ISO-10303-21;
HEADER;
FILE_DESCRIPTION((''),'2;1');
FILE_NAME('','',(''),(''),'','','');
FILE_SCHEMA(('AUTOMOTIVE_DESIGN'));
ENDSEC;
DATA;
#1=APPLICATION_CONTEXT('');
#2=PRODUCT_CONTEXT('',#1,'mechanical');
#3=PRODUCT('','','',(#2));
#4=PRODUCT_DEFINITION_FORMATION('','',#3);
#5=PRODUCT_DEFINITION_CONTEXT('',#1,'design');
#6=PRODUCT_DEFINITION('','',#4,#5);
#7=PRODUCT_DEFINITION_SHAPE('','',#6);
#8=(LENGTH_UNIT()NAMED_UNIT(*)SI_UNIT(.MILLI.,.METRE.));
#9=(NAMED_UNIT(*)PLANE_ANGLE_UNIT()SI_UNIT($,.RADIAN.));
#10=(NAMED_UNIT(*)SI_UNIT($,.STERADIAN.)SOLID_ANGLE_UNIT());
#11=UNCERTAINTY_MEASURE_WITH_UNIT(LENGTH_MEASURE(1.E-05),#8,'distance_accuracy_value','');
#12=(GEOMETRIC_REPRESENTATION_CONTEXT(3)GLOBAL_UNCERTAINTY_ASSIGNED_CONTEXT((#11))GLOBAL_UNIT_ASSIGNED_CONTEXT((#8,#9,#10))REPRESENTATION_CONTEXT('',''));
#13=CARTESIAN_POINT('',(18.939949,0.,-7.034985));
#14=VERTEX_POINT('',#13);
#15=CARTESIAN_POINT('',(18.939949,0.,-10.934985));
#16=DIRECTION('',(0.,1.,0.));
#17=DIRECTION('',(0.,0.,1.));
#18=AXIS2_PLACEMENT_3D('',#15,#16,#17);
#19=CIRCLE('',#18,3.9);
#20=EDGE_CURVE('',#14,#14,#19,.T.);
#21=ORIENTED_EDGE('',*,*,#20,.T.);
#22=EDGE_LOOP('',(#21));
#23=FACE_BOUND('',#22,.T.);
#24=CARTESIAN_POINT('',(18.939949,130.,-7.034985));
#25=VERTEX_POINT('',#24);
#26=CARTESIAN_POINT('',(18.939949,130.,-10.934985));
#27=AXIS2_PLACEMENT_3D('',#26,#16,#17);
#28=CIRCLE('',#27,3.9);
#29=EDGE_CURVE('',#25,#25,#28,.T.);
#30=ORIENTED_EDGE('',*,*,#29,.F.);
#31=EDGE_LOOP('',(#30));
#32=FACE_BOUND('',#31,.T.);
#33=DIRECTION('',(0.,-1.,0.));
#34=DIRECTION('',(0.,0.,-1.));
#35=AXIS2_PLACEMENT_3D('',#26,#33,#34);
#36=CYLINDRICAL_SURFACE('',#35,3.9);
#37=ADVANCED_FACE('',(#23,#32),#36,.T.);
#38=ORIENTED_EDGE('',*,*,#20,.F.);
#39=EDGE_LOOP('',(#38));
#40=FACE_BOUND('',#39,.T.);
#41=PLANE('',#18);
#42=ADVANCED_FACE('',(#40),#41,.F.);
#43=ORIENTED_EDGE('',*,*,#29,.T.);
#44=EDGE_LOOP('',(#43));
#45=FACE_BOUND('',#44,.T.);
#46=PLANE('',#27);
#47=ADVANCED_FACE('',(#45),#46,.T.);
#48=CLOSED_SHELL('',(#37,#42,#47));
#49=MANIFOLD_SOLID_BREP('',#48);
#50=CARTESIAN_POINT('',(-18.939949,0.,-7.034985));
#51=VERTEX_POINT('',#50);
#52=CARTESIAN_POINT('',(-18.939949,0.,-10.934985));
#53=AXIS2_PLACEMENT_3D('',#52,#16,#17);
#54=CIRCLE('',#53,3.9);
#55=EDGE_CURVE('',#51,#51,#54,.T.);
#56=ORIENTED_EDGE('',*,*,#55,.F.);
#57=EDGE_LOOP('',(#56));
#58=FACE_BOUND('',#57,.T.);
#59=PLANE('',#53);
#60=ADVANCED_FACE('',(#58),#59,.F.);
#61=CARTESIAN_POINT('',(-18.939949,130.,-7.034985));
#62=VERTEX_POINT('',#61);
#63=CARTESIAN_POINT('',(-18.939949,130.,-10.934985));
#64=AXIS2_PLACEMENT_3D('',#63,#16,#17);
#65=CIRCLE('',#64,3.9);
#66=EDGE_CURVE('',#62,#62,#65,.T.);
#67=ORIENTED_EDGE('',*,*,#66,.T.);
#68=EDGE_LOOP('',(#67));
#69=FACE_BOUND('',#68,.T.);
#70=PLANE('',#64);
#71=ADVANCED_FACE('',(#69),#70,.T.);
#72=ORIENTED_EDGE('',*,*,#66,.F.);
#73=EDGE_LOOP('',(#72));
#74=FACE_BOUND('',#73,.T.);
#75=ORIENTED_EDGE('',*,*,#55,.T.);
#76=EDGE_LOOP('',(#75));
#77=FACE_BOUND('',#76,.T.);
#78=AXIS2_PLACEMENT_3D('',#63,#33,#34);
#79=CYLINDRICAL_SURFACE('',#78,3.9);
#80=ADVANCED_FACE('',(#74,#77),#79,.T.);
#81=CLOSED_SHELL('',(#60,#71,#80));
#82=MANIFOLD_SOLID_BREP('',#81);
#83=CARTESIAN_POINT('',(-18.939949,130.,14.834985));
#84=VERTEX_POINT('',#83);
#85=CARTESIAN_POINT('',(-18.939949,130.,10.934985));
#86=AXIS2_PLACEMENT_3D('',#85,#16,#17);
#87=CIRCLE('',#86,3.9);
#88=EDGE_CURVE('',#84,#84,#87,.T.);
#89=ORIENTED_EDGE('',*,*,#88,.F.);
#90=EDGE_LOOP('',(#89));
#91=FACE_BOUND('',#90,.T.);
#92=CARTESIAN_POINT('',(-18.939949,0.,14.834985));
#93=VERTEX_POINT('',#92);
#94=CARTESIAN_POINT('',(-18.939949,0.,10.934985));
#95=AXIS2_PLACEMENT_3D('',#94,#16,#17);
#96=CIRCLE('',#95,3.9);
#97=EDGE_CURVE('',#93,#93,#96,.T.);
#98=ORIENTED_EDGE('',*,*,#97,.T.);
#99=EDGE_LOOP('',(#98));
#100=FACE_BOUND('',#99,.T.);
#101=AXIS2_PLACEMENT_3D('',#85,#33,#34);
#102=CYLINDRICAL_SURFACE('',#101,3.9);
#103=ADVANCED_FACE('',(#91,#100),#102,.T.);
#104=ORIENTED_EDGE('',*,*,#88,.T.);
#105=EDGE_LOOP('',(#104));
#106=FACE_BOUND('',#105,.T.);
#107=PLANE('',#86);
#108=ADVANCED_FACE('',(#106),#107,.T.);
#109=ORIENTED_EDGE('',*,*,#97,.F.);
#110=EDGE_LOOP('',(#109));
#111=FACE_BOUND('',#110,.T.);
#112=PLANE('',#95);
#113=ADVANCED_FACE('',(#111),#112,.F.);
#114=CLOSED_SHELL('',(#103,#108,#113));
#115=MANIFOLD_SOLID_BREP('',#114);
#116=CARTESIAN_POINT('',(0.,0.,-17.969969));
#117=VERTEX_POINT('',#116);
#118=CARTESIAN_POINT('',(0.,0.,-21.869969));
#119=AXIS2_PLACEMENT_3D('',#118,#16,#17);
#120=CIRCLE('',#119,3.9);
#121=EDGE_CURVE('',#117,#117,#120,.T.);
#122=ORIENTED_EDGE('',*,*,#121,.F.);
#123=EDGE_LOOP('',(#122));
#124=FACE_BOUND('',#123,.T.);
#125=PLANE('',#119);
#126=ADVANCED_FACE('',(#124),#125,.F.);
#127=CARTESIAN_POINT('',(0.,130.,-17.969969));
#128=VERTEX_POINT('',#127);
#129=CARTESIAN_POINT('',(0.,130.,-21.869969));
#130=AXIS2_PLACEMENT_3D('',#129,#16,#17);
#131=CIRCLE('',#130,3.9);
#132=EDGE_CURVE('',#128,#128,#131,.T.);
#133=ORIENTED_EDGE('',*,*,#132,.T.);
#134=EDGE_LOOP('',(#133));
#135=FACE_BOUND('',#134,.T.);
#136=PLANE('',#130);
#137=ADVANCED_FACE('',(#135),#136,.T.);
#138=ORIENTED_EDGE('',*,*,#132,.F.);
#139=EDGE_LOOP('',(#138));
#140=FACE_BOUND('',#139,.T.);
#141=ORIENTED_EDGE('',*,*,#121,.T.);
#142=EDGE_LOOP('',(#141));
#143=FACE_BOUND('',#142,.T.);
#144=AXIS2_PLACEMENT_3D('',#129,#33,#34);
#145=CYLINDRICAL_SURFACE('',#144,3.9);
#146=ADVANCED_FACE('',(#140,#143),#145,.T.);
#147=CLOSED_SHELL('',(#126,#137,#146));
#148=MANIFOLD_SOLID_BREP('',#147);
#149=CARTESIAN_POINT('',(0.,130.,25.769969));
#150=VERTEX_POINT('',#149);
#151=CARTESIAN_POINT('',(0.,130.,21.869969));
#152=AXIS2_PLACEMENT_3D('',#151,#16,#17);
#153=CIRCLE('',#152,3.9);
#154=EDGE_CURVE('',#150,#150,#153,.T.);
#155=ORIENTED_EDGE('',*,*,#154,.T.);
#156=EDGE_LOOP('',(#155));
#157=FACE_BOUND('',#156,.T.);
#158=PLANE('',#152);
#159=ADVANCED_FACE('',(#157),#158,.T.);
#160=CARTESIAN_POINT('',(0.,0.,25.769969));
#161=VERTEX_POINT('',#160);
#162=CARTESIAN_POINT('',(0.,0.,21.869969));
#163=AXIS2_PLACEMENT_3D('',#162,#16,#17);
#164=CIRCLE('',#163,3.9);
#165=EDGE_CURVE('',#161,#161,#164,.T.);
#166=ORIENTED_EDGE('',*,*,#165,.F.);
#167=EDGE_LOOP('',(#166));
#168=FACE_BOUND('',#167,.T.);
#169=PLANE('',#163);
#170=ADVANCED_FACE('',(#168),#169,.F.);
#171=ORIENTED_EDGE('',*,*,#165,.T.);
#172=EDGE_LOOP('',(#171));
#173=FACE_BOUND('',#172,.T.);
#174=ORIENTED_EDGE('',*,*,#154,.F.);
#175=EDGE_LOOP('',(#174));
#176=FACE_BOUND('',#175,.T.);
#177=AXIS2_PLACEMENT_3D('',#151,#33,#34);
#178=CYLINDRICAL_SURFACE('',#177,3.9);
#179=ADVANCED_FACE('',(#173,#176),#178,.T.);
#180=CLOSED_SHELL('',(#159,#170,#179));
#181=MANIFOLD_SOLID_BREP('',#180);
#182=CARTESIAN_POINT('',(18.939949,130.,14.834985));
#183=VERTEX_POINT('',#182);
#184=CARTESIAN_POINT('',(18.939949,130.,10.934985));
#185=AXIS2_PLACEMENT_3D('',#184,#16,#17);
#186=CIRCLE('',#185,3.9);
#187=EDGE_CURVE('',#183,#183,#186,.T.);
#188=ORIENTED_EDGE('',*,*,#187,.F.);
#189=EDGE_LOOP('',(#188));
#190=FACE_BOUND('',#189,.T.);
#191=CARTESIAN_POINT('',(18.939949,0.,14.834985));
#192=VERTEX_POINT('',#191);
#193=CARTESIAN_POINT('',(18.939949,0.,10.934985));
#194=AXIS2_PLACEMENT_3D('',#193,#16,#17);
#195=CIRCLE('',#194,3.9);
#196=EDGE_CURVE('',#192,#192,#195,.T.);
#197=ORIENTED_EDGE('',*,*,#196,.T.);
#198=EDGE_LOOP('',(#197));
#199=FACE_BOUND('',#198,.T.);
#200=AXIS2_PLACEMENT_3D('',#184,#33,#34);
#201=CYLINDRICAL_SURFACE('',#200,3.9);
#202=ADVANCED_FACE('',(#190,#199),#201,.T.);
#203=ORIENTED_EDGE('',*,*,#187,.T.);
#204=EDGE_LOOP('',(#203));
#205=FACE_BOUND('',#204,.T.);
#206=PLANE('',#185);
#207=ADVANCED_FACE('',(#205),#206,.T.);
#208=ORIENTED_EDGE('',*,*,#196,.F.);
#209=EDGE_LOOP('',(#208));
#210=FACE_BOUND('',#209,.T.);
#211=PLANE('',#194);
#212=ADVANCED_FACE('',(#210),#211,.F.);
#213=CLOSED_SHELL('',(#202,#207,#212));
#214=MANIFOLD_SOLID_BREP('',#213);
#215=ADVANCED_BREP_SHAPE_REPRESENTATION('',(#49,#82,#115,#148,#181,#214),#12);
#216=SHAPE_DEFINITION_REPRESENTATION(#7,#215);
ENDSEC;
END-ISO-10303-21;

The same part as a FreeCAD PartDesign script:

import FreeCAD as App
import Part
import Sketcher
from FreeCAD import Vector
Q = App.Units.Quantity

doc = App.newDocument("Part")
params = doc.addObject("Spreadsheet::Sheet", "Params")
for row, (alias, value) in enumerate([
    ("sketch1_diameter", "7.8 mm"),
    ("pad1_length", "130 mm"),
    ("sketch2_diameter", "7.8 mm"),
    ("pad2_length", "130 mm"),
    ("sketch3_diameter", "7.8 mm"),
    ("pad3_length", "130 mm"),
    ("sketch4_diameter", "7.8 mm"),
    ("pad4_length", "130 mm"),
    ("sketch5_diameter", "7.8 mm"),
    ("pad5_length", "130 mm"),
    ("sketch6_diameter", "7.8 mm"),
    ("pad6_length", "130 mm"),
], start=1):
    params.set(f"A{row}", alias)
    params.set(f"B{row}", "=" + value)
    params.setAlias(f"B{row}", alias)

body = doc.addObject("PartDesign::Body", "Body")

# Sketch on XZ plane
sketch1 = body.newObject("Sketcher::SketchObject", "Sketch")
sketch1.AttachmentSupport = (doc.getObject("XZ_Plane"), [""])
sketch1.MapMode = "FlatFace"
sketch1.addGeometry(Part.Circle(Vector(0, 21.9, 0), Vector(0, 0, 1), 3.9), False)
sketch1.addConstraint([
    Sketcher.Constraint("PointOnObject", 0, 3, -2),
    Sketcher.Constraint("Diameter", 0, Q("7.8 mm")),
    Sketcher.Constraint("DistanceY", -1, 1, 0, 3, Q("21.869969 mm")),
])
sketch1.setExpression("Constraints[1]", "Params.sketch1_diameter")
pad1 = body.newObject("PartDesign::Pad", "Pad")
pad1.Profile = sketch1
pad1.setExpression("Length", "Params.pad1_length")
pad1.Reversed = True
body2 = doc.addObject("PartDesign::Body", "Body001")

# Sketch on XZ plane
sketch2 = body2.newObject("Sketcher::SketchObject", "Sketch001")
sketch2.AttachmentSupport = (doc.getObject("XZ_Plane001"), [""])
sketch2.MapMode = "FlatFace"
sketch2.addGeometry(Part.Circle(Vector(-18.9, 10.9, 0), Vector(0, 0, 1), 3.9), False)
sketch2.addConstraint([
    Sketcher.Constraint("Diameter", 0, Q("7.8 mm")),
    Sketcher.Constraint("DistanceX", 0, 3, -1, 1, Q("18.939949 mm")),
    Sketcher.Constraint("DistanceY", -1, 1, 0, 3, Q("10.934985 mm")),
])
sketch2.setExpression("Constraints[0]", "Params.sketch2_diameter")
pad2 = body2.newObject("PartDesign::Pad", "Pad001")
pad2.Profile = sketch2
pad2.setExpression("Length", "Params.pad2_length")
pad2.Reversed = True
body3 = doc.addObject("PartDesign::Body", "Body002")

# Sketch on XZ plane
sketch3 = body3.newObject("Sketcher::SketchObject", "Sketch002")
sketch3.AttachmentSupport = (doc.getObject("XZ_Plane002"), [""])
sketch3.MapMode = "FlatFace"
sketch3.addGeometry(Part.Circle(Vector(-18.9, -10.9, 0), Vector(0, 0, 1), 3.9), False)
sketch3.addConstraint([
    Sketcher.Constraint("Diameter", 0, Q("7.8 mm")),
    Sketcher.Constraint("DistanceX", 0, 3, -1, 1, Q("18.939949 mm")),
    Sketcher.Constraint("DistanceY", 0, 3, -1, 1, Q("10.934985 mm")),
])
sketch3.setExpression("Constraints[0]", "Params.sketch3_diameter")
pad3 = body3.newObject("PartDesign::Pad", "Pad002")
pad3.Profile = sketch3
pad3.setExpression("Length", "Params.pad3_length")
pad3.Reversed = True
body4 = doc.addObject("PartDesign::Body", "Body003")

# Sketch on XZ plane
sketch4 = body4.newObject("Sketcher::SketchObject", "Sketch003")
sketch4.AttachmentSupport = (doc.getObject("XZ_Plane003"), [""])
sketch4.MapMode = "FlatFace"
sketch4.addGeometry(Part.Circle(Vector(0, -21.9, 0), Vector(0, 0, 1), 3.9), False)
sketch4.addConstraint([
    Sketcher.Constraint("PointOnObject", 0, 3, -2),
    Sketcher.Constraint("Diameter", 0, Q("7.8 mm")),
    Sketcher.Constraint("DistanceY", 0, 3, -1, 1, Q("21.869969 mm")),
])
sketch4.setExpression("Constraints[1]", "Params.sketch4_diameter")
pad4 = body4.newObject("PartDesign::Pad", "Pad003")
pad4.Profile = sketch4
pad4.setExpression("Length", "Params.pad4_length")
pad4.Reversed = True
body5 = doc.addObject("PartDesign::Body", "Body004")

# Sketch on XZ plane
sketch5 = body5.newObject("Sketcher::SketchObject", "Sketch004")
sketch5.AttachmentSupport = (doc.getObject("XZ_Plane004"), [""])
sketch5.MapMode = "FlatFace"
sketch5.addGeometry(Part.Circle(Vector(18.9, -10.9, 0), Vector(0, 0, 1), 3.9), False)
sketch5.addConstraint([
    Sketcher.Constraint("Diameter", 0, Q("7.8 mm")),
    Sketcher.Constraint("DistanceX", -1, 1, 0, 3, Q("18.939949 mm")),
    Sketcher.Constraint("DistanceY", 0, 3, -1, 1, Q("10.934985 mm")),
])
sketch5.setExpression("Constraints[0]", "Params.sketch5_diameter")
pad5 = body5.newObject("PartDesign::Pad", "Pad004")
pad5.Profile = sketch5
pad5.setExpression("Length", "Params.pad5_length")
pad5.Reversed = True
body6 = doc.addObject("PartDesign::Body", "Body005")

# Sketch on XZ plane
sketch6 = body6.newObject("Sketcher::SketchObject", "Sketch005")
sketch6.AttachmentSupport = (doc.getObject("XZ_Plane005"), [""])
sketch6.MapMode = "FlatFace"
sketch6.addGeometry(Part.Circle(Vector(18.9, 10.9, 0), Vector(0, 0, 1), 3.9), False)
sketch6.addConstraint([
    Sketcher.Constraint("Diameter", 0, Q("7.8 mm")),
    Sketcher.Constraint("DistanceX", -1, 1, 0, 3, Q("18.939949 mm")),
    Sketcher.Constraint("DistanceY", -1, 1, 0, 3, Q("10.934985 mm")),
])
sketch6.setExpression("Constraints[0]", "Params.sketch6_diameter")
pad6 = body6.newObject("PartDesign::Pad", "Pad005")
pad6.Profile = sketch6
pad6.setExpression("Length", "Params.pad6_length")
pad6.Reversed = True

doc.recompute()
